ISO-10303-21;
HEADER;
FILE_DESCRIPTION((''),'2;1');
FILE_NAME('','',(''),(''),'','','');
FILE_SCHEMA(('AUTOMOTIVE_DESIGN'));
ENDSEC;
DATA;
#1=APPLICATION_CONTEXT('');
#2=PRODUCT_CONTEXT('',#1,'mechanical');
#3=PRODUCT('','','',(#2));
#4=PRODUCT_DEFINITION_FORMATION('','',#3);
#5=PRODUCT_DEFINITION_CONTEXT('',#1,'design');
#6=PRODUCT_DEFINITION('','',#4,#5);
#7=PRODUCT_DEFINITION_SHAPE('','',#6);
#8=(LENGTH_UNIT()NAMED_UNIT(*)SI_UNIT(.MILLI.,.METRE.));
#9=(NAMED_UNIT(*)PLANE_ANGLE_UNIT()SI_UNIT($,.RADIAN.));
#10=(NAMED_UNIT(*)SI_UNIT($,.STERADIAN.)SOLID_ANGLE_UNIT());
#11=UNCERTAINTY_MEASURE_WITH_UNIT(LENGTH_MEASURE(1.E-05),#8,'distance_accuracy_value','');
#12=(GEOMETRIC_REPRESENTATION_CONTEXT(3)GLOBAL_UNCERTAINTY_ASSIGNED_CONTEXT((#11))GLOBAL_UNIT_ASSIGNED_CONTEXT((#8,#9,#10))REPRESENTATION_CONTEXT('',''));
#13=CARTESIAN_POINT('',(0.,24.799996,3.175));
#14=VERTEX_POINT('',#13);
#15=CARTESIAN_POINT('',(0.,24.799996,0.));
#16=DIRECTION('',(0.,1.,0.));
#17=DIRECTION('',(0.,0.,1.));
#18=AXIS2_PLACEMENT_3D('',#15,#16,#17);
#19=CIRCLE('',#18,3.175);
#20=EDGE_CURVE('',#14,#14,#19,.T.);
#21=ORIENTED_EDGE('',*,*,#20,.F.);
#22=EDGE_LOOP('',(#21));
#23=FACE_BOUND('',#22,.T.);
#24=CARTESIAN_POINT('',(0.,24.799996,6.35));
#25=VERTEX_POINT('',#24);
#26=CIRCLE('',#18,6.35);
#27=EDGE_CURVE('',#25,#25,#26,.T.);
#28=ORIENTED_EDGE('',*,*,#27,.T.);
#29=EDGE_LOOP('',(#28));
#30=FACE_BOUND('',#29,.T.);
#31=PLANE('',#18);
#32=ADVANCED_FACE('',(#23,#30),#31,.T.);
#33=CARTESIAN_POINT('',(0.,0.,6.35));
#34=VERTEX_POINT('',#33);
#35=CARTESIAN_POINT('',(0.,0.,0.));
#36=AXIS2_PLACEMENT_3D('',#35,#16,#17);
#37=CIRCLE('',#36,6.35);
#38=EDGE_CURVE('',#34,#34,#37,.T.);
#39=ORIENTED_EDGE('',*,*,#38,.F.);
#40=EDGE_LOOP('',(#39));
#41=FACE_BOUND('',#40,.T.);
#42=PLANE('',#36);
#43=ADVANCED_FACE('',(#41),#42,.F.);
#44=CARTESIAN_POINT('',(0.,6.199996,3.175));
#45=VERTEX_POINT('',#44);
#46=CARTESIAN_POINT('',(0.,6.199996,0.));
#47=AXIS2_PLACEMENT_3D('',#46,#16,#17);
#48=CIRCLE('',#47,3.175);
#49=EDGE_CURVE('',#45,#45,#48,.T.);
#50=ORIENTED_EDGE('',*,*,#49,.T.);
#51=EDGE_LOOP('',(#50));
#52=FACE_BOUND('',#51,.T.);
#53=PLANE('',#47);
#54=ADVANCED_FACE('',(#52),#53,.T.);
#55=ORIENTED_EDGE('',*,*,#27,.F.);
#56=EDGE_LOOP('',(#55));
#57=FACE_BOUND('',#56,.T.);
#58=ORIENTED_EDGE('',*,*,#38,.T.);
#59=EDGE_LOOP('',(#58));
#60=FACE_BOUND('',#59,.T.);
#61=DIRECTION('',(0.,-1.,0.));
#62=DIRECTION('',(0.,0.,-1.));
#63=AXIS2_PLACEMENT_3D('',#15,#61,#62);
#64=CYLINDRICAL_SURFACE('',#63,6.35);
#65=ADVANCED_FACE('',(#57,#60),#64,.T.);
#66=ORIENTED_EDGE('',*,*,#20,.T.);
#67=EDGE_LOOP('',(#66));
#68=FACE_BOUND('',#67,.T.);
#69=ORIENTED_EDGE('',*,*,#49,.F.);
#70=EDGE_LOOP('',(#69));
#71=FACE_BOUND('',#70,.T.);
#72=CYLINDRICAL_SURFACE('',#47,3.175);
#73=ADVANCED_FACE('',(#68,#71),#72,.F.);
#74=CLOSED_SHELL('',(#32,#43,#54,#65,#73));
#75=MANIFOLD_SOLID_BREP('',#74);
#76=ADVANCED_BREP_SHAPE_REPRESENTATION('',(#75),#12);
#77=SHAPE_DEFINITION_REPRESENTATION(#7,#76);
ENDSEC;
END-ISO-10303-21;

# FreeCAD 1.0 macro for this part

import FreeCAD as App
import Part
import Sketcher
from FreeCAD import Vector
Q = App.Units.Quantity

doc = App.newDocument("Part")
body = doc.addObject("PartDesign::Body", "Body")

sketch1 = body.newObject("Sketcher::SketchObject", "Sketch")
sketch1.AttachmentSupport = (doc.getObject("XZ_Plane"), [""])
sketch1.MapMode = "FlatFace"
sketch1.addGeometry(Part.Circle(Vector(0, 0, 0), Vector(0, 0, 1), 6), False)
sketch1.addConstraint([
    Sketcher.Constraint("Coincident", 0, 3, -1, 1),
    Sketcher.Constraint("Diameter", 0, Q("0.5 in")),
])
pad1 = body.newObject("PartDesign::Pad", "Pad")
pad1.Profile = sketch1
pad1.Length = 24.799996
pad1.Reversed = True

sketch2 = body.newObject("Sketcher::SketchObject", "Sketch001")
sketch2.AttachmentSupport = (doc.getObject("XZ_Plane"), [""])
sketch2.MapMode = "FlatFace"
sketch2.AttachmentOffset = App.Placement(Vector(0, 0, -24.799996), App.Rotation())
sketch2.addGeometry(Part.Circle(Vector(0, 0, 0), Vector(0, 0, 1), 3.2), False)
sketch2.addConstraint([
    Sketcher.Constraint("Coincident", 0, 3, -1, 1),
    Sketcher.Constraint("Diameter", 0, Q("0.25 in")),
])
pocket1 = body.newObject("PartDesign::Pocket", "Pocket")
pocket1.Profile = sketch2
pocket1.Length = 18.6
pocket1.Reversed = True

doc.recompute()
